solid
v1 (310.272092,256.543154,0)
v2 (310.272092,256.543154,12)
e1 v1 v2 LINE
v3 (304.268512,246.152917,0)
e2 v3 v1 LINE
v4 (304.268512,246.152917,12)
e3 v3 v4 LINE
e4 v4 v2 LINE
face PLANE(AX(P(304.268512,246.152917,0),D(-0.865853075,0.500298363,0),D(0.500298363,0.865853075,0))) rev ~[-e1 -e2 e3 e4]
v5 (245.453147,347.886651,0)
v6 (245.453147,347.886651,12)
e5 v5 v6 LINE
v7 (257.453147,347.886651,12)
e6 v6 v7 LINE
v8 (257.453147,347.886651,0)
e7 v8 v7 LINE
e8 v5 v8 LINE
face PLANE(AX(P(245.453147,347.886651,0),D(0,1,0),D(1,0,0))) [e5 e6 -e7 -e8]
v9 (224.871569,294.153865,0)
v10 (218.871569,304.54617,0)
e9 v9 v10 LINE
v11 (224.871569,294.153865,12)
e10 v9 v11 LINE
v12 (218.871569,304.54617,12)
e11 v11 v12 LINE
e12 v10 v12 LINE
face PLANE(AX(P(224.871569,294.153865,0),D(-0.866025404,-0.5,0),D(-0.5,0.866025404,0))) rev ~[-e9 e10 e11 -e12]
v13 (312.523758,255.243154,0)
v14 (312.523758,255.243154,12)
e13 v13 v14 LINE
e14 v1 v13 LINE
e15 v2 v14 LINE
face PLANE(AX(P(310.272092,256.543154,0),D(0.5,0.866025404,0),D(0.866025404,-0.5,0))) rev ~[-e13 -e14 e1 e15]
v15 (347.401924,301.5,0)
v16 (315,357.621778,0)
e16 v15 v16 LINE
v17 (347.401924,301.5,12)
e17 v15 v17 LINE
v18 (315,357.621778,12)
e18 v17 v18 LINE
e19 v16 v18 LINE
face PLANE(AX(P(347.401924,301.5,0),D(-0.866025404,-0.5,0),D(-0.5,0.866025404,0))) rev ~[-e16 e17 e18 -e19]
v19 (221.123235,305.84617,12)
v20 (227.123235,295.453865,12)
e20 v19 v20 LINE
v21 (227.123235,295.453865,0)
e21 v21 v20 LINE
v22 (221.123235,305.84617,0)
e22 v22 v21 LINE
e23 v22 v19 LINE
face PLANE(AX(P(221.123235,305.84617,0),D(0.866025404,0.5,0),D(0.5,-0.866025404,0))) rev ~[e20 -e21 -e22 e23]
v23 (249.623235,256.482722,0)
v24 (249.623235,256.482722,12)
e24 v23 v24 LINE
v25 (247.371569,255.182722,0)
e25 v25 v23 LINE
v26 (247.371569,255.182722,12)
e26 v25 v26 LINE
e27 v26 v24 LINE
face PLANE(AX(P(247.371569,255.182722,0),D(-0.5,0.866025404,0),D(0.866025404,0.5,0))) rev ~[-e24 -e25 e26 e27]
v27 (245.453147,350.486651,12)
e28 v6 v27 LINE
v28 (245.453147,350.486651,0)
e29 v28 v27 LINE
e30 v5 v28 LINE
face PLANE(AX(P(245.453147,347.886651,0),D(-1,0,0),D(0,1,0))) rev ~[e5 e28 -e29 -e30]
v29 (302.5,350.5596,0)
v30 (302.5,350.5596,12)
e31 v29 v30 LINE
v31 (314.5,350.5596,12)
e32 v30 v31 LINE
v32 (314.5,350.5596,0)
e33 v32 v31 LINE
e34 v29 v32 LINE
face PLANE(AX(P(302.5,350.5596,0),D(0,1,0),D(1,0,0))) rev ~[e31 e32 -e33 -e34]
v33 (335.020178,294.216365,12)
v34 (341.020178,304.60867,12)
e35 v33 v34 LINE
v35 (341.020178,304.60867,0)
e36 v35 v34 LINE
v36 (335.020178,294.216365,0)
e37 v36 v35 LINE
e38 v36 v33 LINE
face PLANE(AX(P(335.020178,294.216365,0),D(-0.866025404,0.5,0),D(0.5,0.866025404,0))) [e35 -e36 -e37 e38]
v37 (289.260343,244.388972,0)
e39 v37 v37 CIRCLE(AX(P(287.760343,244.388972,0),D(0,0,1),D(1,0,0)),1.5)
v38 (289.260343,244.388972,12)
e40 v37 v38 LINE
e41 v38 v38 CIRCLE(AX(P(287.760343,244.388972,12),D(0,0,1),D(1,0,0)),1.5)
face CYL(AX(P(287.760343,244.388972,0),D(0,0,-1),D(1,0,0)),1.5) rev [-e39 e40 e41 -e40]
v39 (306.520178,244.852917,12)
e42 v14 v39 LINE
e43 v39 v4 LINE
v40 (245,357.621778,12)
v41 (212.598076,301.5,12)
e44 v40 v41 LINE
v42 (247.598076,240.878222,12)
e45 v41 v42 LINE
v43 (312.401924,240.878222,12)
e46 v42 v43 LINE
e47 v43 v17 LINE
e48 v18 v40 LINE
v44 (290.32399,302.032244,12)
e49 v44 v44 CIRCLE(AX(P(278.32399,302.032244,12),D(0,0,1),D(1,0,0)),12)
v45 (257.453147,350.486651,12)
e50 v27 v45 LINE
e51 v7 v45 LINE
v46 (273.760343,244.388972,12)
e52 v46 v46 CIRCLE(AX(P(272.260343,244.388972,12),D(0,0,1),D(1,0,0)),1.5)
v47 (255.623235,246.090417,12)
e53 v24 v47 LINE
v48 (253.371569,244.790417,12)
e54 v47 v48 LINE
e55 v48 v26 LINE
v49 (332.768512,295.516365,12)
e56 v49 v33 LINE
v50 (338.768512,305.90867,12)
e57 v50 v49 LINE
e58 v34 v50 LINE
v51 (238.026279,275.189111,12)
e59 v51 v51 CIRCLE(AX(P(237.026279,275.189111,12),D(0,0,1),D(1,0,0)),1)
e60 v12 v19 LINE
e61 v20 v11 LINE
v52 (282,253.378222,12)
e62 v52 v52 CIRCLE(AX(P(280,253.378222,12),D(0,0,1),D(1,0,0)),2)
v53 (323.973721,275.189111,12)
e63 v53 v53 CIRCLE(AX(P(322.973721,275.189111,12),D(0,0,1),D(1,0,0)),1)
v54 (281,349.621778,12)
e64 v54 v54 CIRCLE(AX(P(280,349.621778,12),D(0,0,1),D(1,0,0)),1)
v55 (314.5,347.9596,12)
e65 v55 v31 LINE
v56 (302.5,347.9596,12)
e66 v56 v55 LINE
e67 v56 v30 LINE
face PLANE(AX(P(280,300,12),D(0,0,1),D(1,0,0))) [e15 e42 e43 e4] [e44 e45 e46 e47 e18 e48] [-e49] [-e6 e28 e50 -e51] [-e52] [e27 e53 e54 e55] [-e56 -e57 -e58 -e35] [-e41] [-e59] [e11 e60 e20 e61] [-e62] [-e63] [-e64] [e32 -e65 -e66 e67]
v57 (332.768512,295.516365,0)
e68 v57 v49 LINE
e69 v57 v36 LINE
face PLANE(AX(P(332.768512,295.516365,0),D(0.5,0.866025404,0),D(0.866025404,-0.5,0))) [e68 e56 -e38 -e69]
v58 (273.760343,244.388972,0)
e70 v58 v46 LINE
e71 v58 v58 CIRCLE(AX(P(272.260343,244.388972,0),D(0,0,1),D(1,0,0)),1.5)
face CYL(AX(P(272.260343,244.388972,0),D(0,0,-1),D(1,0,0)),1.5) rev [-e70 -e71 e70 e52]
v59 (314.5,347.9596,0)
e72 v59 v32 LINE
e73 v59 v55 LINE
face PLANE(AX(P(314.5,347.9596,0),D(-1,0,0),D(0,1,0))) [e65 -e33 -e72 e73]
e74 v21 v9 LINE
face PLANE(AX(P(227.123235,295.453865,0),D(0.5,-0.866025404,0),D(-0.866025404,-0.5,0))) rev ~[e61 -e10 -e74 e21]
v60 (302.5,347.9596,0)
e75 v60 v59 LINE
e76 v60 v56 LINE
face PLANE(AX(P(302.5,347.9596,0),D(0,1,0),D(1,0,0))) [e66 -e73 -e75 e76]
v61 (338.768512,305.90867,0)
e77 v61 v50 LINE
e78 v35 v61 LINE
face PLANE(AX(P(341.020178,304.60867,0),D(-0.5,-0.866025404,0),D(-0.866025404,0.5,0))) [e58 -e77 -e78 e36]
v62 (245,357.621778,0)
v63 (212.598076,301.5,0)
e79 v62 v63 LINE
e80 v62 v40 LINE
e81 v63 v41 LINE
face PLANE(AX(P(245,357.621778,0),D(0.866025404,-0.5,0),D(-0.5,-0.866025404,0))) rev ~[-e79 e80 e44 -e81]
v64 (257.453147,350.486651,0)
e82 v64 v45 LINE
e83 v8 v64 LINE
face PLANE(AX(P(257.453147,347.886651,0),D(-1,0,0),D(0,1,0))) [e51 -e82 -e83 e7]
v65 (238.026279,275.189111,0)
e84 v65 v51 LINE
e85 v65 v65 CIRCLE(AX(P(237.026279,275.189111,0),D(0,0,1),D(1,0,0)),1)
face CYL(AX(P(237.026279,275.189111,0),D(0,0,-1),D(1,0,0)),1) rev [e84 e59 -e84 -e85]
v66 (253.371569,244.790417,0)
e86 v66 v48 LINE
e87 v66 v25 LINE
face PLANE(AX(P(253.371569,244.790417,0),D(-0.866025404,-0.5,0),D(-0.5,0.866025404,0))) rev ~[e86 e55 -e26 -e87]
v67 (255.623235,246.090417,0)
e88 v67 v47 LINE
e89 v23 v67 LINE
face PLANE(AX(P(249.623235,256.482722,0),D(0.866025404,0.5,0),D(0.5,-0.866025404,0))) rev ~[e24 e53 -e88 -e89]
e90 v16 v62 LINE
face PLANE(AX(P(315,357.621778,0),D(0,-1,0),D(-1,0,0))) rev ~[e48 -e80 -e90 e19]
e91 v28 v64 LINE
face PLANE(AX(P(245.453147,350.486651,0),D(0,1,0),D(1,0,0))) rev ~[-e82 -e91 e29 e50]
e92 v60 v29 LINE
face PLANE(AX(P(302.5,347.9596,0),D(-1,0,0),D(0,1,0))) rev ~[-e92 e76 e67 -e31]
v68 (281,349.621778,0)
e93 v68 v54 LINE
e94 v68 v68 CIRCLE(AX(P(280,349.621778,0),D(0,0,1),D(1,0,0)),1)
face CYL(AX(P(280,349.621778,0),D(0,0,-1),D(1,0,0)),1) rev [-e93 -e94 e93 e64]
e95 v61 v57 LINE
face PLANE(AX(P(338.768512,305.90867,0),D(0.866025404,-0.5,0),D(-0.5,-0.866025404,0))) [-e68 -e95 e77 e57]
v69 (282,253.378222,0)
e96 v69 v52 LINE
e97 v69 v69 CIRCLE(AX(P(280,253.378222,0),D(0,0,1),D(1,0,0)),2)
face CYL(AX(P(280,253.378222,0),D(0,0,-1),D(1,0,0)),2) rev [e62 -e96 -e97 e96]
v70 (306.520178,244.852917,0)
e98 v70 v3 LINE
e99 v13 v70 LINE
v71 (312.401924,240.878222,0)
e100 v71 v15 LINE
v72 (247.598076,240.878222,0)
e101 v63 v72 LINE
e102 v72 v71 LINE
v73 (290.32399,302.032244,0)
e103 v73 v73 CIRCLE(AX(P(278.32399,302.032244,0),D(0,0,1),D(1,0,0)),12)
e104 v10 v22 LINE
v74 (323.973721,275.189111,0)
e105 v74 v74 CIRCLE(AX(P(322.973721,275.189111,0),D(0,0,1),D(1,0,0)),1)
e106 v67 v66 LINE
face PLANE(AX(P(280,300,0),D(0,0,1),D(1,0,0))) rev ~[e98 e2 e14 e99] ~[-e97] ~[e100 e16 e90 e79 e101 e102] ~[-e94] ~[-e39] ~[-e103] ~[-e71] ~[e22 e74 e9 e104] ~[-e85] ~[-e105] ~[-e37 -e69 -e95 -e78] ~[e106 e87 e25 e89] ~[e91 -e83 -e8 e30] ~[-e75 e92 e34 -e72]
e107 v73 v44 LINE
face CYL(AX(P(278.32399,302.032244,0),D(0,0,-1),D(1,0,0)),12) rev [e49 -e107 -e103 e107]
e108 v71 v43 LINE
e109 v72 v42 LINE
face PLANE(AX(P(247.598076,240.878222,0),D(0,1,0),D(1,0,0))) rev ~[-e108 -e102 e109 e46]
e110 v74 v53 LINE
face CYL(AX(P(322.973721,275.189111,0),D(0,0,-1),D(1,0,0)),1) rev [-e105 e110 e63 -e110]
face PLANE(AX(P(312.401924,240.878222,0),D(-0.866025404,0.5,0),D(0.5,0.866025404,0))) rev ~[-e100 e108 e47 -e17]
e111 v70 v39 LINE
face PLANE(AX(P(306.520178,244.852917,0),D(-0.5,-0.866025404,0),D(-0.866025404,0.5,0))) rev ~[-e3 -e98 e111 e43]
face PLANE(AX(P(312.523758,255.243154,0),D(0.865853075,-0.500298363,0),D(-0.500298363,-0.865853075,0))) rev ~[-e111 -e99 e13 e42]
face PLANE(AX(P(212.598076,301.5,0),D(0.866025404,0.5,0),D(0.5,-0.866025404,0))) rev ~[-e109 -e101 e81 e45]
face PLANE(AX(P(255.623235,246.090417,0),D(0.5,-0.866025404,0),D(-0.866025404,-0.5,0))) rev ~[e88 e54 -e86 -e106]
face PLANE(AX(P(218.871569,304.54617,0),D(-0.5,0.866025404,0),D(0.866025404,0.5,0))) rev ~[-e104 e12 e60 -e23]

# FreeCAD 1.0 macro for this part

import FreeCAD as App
import Part
import Sketcher
from FreeCAD import Vector
Q = App.Units.Quantity


def add_polygon(sketch, points):
    """Adds a closed chain of lines whose ends are joined by coincident constraints."""
    first, n = sketch.GeometryCount, len(points)
    for a, b in zip(points, points[1:] + points[:1]):
        sketch.addGeometry(Part.LineSegment(App.Vector(*a, 0), App.Vector(*b, 0)), False)
    for i in range(n):
        sketch.addConstraint(Sketcher.Constraint("Coincident", first + i, 2, first + (i + 1) % n, 1))

doc = App.newDocument("Part")
body = doc.addObject("PartDesign::Body", "Body")

sketch1 = body.newObject("Sketcher::SketchObject", "Sketch")
sketch1.AttachmentSupport = (doc.getObject("XY_Plane"), [""])
sketch1.MapMode = "FlatFace"
add_polygon(sketch1, [(312.4, 240.9), (347.4, 301.5), (315, 357.6), (245, 357.6), (212.6, 301.5), (247.6, 240.9)])
add_polygon(sketch1, [(249.6, 256.5), (255.6, 246.1), (253.4, 244.8), (247.4, 255.2)])
sketch1.addGeometry(Part.Circle(Vector(272.3, 244.4, 0), Vector(0, 0, 1), 1.5), False)
sketch1.addGeometry(Part.Circle(Vector(237, 275.2, 0), Vector(0, 0, 1), 1), False)
sketch1.addGeometry(Part.Circle(Vector(287.8, 244.4, 0), Vector(0, 0, 1), 1.5), False)
sketch1.addGeometry(Part.Circle(Vector(280, 253.4, 0), Vector(0, 0, 1), 2), False)
add_polygon(sketch1, [(304.3, 246.2), (310.3, 256.5), (312.5, 255.2), (306.5, 244.9)])
sketch1.addGeometry(Part.Circle(Vector(323, 275.2, 0), Vector(0, 0, 1), 1), False)
add_polygon(sketch1, [(221.1, 305.8), (227.1, 295.5), (224.9, 294.2), (218.9, 304.5)])
sketch1.addGeometry(Part.Circle(Vector(278.3, 302, 0), Vector(0, 0, 1), 12), False)
add_polygon(sketch1, [(257.5, 347.9), (245.5, 347.9), (245.5, 350.5), (257.5, 350.5)])
add_polygon(sketch1, [(335, 294.2), (332.8, 295.5), (338.8, 305.9), (341, 304.6)])
sketch1.addGeometry(Part.Circle(Vector(280, 349.6, 0), Vector(0, 0, 1), 1), False)
add_polygon(sketch1, [(314.5, 348), (302.5, 348), (302.5, 350.6), (314.5, 350.6)])
sketch1.addConstraint(Sketcher.Constraint("Horizontal", 2))
sketch1.addConstraint(Sketcher.Constraint("Horizontal", 5))
sketch1.addConstraint(Sketcher.Constraint("Horizontal", 24))
sketch1.addConstraint(Sketcher.Constraint("Vertical", 25))
sketch1.addConstraint(Sketcher.Constraint("Horizontal", 26))
sketch1.addConstraint(Sketcher.Constraint("Vertical", 27))
sketch1.addConstraint(Sketcher.Constraint("Horizontal", 33))
sketch1.addConstraint(Sketcher.Constraint("Vertical", 34))
sketch1.addConstraint(Sketcher.Constraint("Horizontal", 35))
sketch1.addConstraint(Sketcher.Constraint("Vertical", 36))
sketch1.addConstraint(Sketcher.Constraint("Equal", 10, 12))
sketch1.addConstraint(Sketcher.Constraint("Equal", 11, 18))
sketch1.addConstraint(Sketcher.Constraint("Equal", 18, 32))
sketch1.addConstraint(Sketcher.Constraint("Parallel", 0, 3))
sketch1.addConstraint(Sketcher.Constraint("Parallel", 1, 4))
sketch1.addConstraint(Sketcher.Constraint("Parallel", 4, 6))
sketch1.addConstraint(Sketcher.Constraint("Perpendicular", 6, 7))
sketch1.addConstraint(Sketcher.Constraint("Perpendicular", 7, 8))
sketch1.addConstraint(Sketcher.Constraint("Perpendicular", 8, 9))
sketch1.addConstraint(Sketcher.Constraint("Perpendicular", 3, 15))
sketch1.addConstraint(Sketcher.Constraint("Parallel", 14, 16))
sketch1.addConstraint(Sketcher.Constraint("Parallel", 15, 17))
sketch1.addConstraint(Sketcher.Constraint("Perpendicular", 9, 19))
sketch1.addConstraint(Sketcher.Constraint("Perpendicular", 19, 20))
sketch1.addConstraint(Sketcher.Constraint("Perpendicular", 20, 21))
sketch1.addConstraint(Sketcher.Constraint("Perpendicular", 21, 22))
sketch1.addConstraint(Sketcher.Constraint("Parallel", 17, 28))
sketch1.addConstraint(Sketcher.Constraint("Perpendicular", 28, 29))
sketch1.addConstraint(Sketcher.Constraint("Perpendicular", 29, 30))
sketch1.addConstraint(Sketcher.Constraint("Perpendicular", 30, 31))
sketch1.addConstraint(Sketcher.Constraint("Horizontal", 10, 3, 12, 3))
sketch1.addConstraint(Sketcher.Constraint("Horizontal", 11, 3, 18, 3))
sketch1.addConstraint(Sketcher.Constraint("Horizontal", 0, 2, 3, 2))
sketch1.addConstraint(Sketcher.Constraint("Vertical", 13, 3, 32, 3))
sketch1.addConstraint(Sketcher.Constraint("Equal", 26, 33))
sketch1.addConstraint(Sketcher.Constraint("Equal", 27, 34))
sketch1.addConstraint(Sketcher.Constraint("Equal", 1, 3))
sketch1.addConstraint(Sketcher.Constraint("Equal", 8, 14))
sketch1.addConstraint(Sketcher.Constraint("Equal", 9, 15))
sketch1.addConstraint(Sketcher.Constraint("Equal", 16, 19))
sketch1.addConstraint(Sketcher.Constraint("Equal", 17, 20))
sketch1.addConstraint(Sketcher.Constraint("Equal", 22, 28))
sketch1.addConstraint(Sketcher.Constraint("Equal", 21, 29))
sketch1.addConstraint(Sketcher.Constraint("Diameter", 10, Q("3 mm")))
sketch1.addConstraint(Sketcher.Constraint("Diameter", 11, Q("2 mm")))
sketch1.addConstraint(Sketcher.Constraint("Diameter", 13, Q("4 mm")))
sketch1.addConstraint(Sketcher.Constraint("Diameter", 23, Q("24 mm")))
sketch1.addConstraint(Sketcher.Constraint("DistanceX", 2, 2, 2, 1, Q("70 mm")))
sketch1.addConstraint(Sketcher.Constraint("DistanceX", 24, 2, 24, 1, Q("12 mm")))
sketch1.addConstraint(Sketcher.Constraint("Angle", 0, Q("60 deg")))
sketch1.addConstraint(Sketcher.Constraint("Distance", 0, Q("70 mm")))
sketch1.addConstraint(Sketcher.Constraint("Distance", 6, Q("12 mm")))
sketch1.addConstraint(Sketcher.Constraint("DistanceY", 25, 1, 25, 2, Q("2.6 mm")))
sketch1.addConstraint(Sketcher.Constraint("DistanceX", -1, 1, 13, 3, Q("280 mm")))
sketch1.addConstraint(Sketcher.Constraint("DistanceX", -1, 1, 1, 2, Q("315 mm")))
sketch1.addConstraint(Sketcher.Constraint("DistanceY", 32, 3, 1, 2, Q("8 mm")))
sketch1.addConstraint(Sketcher.Constraint("Distance", 7, Q("2.6 mm")))
sketch1.addConstraint(Sketcher.Constraint("DistanceY", -1, 1, 0, 2, Q("301.5 mm")))
sketch1.addConstraint(Sketcher.Constraint("DistanceX", -1, 1, 33, 2, Q("302.5 mm")))
sketch1.addConstraint(Sketcher.Constraint("DistanceX", 10, 3, 12, 3, Q("15.5 mm")))
sketch1.addConstraint(Sketcher.Constraint("DistanceY", 4, 2, 13, 3, Q("12.5 mm")))
sketch1.addConstraint(Sketcher.Constraint("DistanceX", 19, 2, 9, 2, Q("22.5 mm")))
sketch1.addConstraint(Sketcher.Constraint("DistanceY", -1, 1, 33, 2, Q("347.9596 mm")))
sketch1.addConstraint(Sketcher.Constraint("DistanceY", 4, 2, 8, 2, Q("14.3045 mm")))
sketch1.addConstraint(Sketcher.Constraint("DistanceX", 5, 1, 5, 2, Q("64.803848 mm")))
sketch1.addConstraint(Sketcher.Constraint("DistanceX", -1, 1, 11, 3, Q("237.026279 mm")))
sketch1.addConstraint(Sketcher.Constraint("DistanceY", -1, 1, 11, 3, Q("275.189111 mm")))
sketch1.addConstraint(Sketcher.Constraint("DistanceX", -1, 1, 18, 3, Q("322.973721 mm")))
sketch1.addConstraint(Sketcher.Constraint("DistanceX", -1, 1, 23, 3, Q("278.32399 mm")))
sketch1.addConstraint(Sketcher.Constraint("DistanceX", -1, 1, 7, 2, Q("253.371569 mm")))
sketch1.addConstraint(Sketcher.Constraint("DistanceX", -1, 1, 15, 2, Q("312.523758 mm")))
sketch1.addConstraint(Sketcher.Constraint("DistanceX", -1, 1, 17, 2, Q("304.268512 mm")))
sketch1.addConstraint(Sketcher.Constraint("DistanceY", -1, 1, 21, 2, Q("304.54617 mm")))
sketch1.addConstraint(Sketcher.Constraint("DistanceY", -1, 1, 24, 2, Q("347.886651 mm")))
sketch1.addConstraint(Sketcher.Constraint("DistanceX", -1, 1, 28, 2, Q("332.768512 mm")))
sketch1.addConstraint(Sketcher.Constraint("DistanceY", -1, 1, 29, 2, Q("305.90867 mm")))
sketch1.addConstraint(Sketcher.Constraint("DistanceY", 10, 3, 11, 3, Q("30.800139 mm")))
sketch1.addConstraint(Sketcher.Constraint("DistanceY", 10, 3, 23, 3, Q("57.643272 mm")))
sketch1.addConstraint(Sketcher.Constraint("DistanceX", 12, 3, 0, 2, Q("59.641581 mm")))
sketch1.addConstraint(Sketcher.Constraint("DistanceY", 5, 2, 14, 2, Q("15.664932 mm")))
sketch1.addConstraint(Sketcher.Constraint("DistanceX", 22, 2, 24, 2, Q("24.329912 mm")))
pad1 = body.newObject("PartDesign::Pad", "Pad")
pad1.Profile = sketch1
pad1.Length = 12

doc.recompute()
